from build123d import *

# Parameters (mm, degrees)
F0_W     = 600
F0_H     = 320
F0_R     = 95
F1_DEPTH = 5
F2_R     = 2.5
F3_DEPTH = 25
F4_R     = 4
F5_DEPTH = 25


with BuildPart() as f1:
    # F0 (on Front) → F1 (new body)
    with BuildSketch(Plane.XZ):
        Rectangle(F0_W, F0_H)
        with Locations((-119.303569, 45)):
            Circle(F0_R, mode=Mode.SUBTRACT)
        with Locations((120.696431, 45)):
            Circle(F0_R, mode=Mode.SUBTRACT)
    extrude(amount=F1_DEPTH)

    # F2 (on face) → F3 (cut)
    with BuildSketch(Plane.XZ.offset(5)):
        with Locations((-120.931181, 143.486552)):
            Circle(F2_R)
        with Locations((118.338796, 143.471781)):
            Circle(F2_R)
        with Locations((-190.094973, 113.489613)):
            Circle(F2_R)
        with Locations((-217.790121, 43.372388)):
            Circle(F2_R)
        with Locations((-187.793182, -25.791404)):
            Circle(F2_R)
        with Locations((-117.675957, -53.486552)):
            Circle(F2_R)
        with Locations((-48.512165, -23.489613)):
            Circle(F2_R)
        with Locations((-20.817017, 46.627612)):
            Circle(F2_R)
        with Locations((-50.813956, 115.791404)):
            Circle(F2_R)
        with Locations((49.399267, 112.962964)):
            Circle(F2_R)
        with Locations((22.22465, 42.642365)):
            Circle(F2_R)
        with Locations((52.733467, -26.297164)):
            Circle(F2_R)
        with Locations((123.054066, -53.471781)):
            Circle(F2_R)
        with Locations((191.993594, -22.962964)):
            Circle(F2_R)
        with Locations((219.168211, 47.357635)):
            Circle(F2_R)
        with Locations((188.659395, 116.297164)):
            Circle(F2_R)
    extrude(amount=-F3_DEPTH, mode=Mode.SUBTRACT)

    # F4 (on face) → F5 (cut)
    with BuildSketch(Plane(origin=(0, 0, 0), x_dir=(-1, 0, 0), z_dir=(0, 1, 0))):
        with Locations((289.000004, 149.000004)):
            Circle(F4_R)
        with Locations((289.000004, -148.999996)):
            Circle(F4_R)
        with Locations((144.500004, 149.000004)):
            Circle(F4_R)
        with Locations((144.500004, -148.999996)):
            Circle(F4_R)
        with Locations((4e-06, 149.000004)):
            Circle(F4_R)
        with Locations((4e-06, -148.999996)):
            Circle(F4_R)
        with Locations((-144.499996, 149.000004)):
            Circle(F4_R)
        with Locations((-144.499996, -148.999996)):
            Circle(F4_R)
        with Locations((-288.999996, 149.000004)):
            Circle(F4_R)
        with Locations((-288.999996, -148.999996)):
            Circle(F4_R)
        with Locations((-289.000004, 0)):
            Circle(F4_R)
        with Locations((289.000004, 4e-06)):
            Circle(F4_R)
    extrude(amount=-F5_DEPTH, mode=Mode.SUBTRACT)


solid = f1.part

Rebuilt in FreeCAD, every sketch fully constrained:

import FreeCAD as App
import Part
import Sketcher

V = App.Vector
Q = App.Units.Quantity


def add_polygon(sketch, points):
    """Adds a closed chain of lines whose ends are joined by coincident constraints."""
    first, n = sketch.GeometryCount, len(points)
    for a, b in zip(points, points[1:] + points[:1]):
        sketch.addGeometry(Part.LineSegment(App.Vector(*a, 0), App.Vector(*b, 0)), False)
    for i in range(n):
        sketch.addConstraint(Sketcher.Constraint("Coincident", first + i, 2, first + (i + 1) % n, 1))

doc = App.newDocument("Part")
body = doc.addObject("PartDesign::Body", "Body")

sketch1 = body.newObject("Sketcher::SketchObject", "Sketch")
sketch1.AttachmentSupport = (doc.getObject("XZ_Plane"), [""])
sketch1.MapMode = "FlatFace"
add_polygon(sketch1, [(-300, 160), (-300, -160), (300, -160), (300, 160)])
sketch1.addGeometry(Part.Circle(V(-119, 45, 0), V(0, 0, 1), 95), False)
sketch1.addGeometry(Part.Circle(V(121, 45, 0), V(0, 0, 1), 95), False)
sketch1.addConstraint(Sketcher.Constraint("Vertical", 0))
sketch1.addConstraint(Sketcher.Constraint("Horizontal", 1))
sketch1.addConstraint(Sketcher.Constraint("Vertical", 2))
sketch1.addConstraint(Sketcher.Constraint("Horizontal", 3))
sketch1.addConstraint(Sketcher.Constraint("Equal", 4, 5))
sketch1.addConstraint(Sketcher.Constraint("Symmetric", 0, 2, 2, 2, -1, 1))
sketch1.addConstraint(Sketcher.Constraint("Horizontal", 4, 3, 5, 3))
sketch1.addConstraint(Sketcher.Constraint("Diameter", 4, Q("190 mm")))
sketch1.addConstraint(Sketcher.Constraint("DistanceX", 1, 1, 1, 2, Q("600 mm")))
sketch1.addConstraint(Sketcher.Constraint("DistanceY", 0, 2, 0, 1, Q("320 mm")))
sketch1.addConstraint(Sketcher.Constraint("DistanceY", -1, 1, 4, 3, Q("45 mm")))
sketch1.addConstraint(Sketcher.Constraint("DistanceX", 4, 3, 5, 3, Q("240 mm")))
sketch1.addConstraint(Sketcher.Constraint("DistanceX", 4, 3, -1, 1, Q("119.303569 mm")))
pad1 = body.newObject("PartDesign::Pad", "Pad")
pad1.Profile = sketch1
pad1.Length = 5

sketch2 = body.newObject("Sketcher::SketchObject", "Sketch001")
sketch2.AttachmentSupport = (doc.getObject("XZ_Plane"), [""])
sketch2.MapMode = "FlatFace"
sketch2.AttachmentOffset = App.Placement(V(0, 0, 5), App.Rotation())
sketch2.addGeometry(Part.Circle(V(-120.9, 143.5, 0), V(0, 0, 1), 2.5), False)
sketch2.addGeometry(Part.Circle(V(118.3, 143.5, 0), V(0, 0, 1), 2.5), False)
sketch2.addGeometry(Part.Circle(V(-190.1, 113.5, 0), V(0, 0, 1), 2.5), False)
sketch2.addGeometry(Part.Circle(V(-217.8, 43.4, 0), V(0, 0, 1), 2.5), False)
sketch2.addGeometry(Part.Circle(V(-187.8, -25.8, 0), V(0, 0, 1), 2.5), False)
sketch2.addGeometry(Part.Circle(V(-117.7, -53.5, 0), V(0, 0, 1), 2.5), False)
sketch2.addGeometry(Part.Circle(V(-48.5, -23.5, 0), V(0, 0, 1), 2.5), False)
sketch2.addGeometry(Part.Circle(V(-20.8, 46.6, 0), V(0, 0, 1), 2.5), False)
sketch2.addGeometry(Part.Circle(V(-50.8, 115.8, 0), V(0, 0, 1), 2.5), False)
sketch2.addGeometry(Part.Circle(V(49.4, 113, 0), V(0, 0, 1), 2.5), False)
sketch2.addGeometry(Part.Circle(V(22.2, 42.6, 0), V(0, 0, 1), 2.5), False)
sketch2.addGeometry(Part.Circle(V(52.7, -26.3, 0), V(0, 0, 1), 2.5), False)
sketch2.addGeometry(Part.Circle(V(123.1, -53.5, 0), V(0, 0, 1), 2.5), False)
sketch2.addGeometry(Part.Circle(V(192, -23, 0), V(0, 0, 1), 2.5), False)
sketch2.addGeometry(Part.Circle(V(219.2, 47.4, 0), V(0, 0, 1), 2.5), False)
sketch2.addGeometry(Part.Circle(V(188.7, 116.3, 0), V(0, 0, 1), 2.5), False)
sketch2.addConstraint(Sketcher.Constraint("Equal", 0, 1))
sketch2.addConstraint(Sketcher.Constraint("Equal", 1, 2))
sketch2.addConstraint(Sketcher.Constraint("Equal", 2, 3))
sketch2.addConstraint(Sketcher.Constraint("Equal", 3, 4))
sketch2.addConstraint(Sketcher.Constraint("Equal", 4, 5))
sketch2.addConstraint(Sketcher.Constraint("Equal", 5, 6))
sketch2.addConstraint(Sketcher.Constraint("Equal", 6, 7))
sketch2.addConstraint(Sketcher.Constraint("Equal", 7, 8))
sketch2.addConstraint(Sketcher.Constraint("Equal", 8, 9))
sketch2.addConstraint(Sketcher.Constraint("Equal", 9, 10))
sketch2.addConstraint(Sketcher.Constraint("Equal", 10, 11))
sketch2.addConstraint(Sketcher.Constraint("Equal", 11, 12))
sketch2.addConstraint(Sketcher.Constraint("Equal", 12, 13))
sketch2.addConstraint(Sketcher.Constraint("Equal", 13, 14))
sketch2.addConstraint(Sketcher.Constraint("Equal", 14, 15))
sketch2.addConstraint(Sketcher.Constraint("Diameter", 0, Q("5 mm")))
sketch2.addConstraint(Sketcher.Constraint("DistanceX", 4, 3, 0, 3, Q("66.862001 mm")))
sketch2.addConstraint(Sketcher.Constraint("DistanceY", 6, 3, 3, 3, Q("66.862001 mm")))
sketch2.addConstraint(Sketcher.Constraint("DistanceY", 10, 3, 9, 3, Q("70.320599 mm")))
sketch2.addConstraint(Sketcher.Constraint("DistanceX", 9, 3, 11, 3, Q("3.3342 mm")))
sketch2.addConstraint(Sketcher.Constraint("DistanceX", 11, 3, 12, 3, Q("70.320599 mm")))
sketch2.addConstraint(Sketcher.Constraint("DistanceY", 11, 3, 13, 3, Q("3.3342 mm")))
sketch2.addConstraint(Sketcher.Constraint("DistanceX", 1, 3, 13, 3, Q("73.654798 mm")))
sketch2.addConstraint(Sketcher.Constraint("DistanceY", 13, 3, 14, 3, Q("70.320599 mm")))
sketch2.addConstraint(Sketcher.Constraint("DistanceX", 1, 3, 15, 3, Q("70.320599 mm")))
sketch2.addConstraint(Sketcher.Constraint("DistanceY", 9, 3, 15, 3, Q("3.3342 mm")))
sketch2.addConstraint(Sketcher.Constraint("DistanceX", 0, 3, -1, 1, Q("120.931181 mm")))
sketch2.addConstraint(Sketcher.Constraint("DistanceY", -1, 1, 0, 3, Q("143.486552 mm")))
sketch2.addConstraint(Sketcher.Constraint("DistanceY", -1, 1, 1, 3, Q("143.471781 mm")))
sketch2.addConstraint(Sketcher.Constraint("DistanceX", 3, 3, -1, 1, Q("217.790121 mm")))
sketch2.addConstraint(Sketcher.Constraint("DistanceX", -1, 1, 10, 3, Q("22.22465 mm")))
sketch2.addConstraint(Sketcher.Constraint("DistanceY", 12, 3, -1, 1, Q("53.471781 mm")))
sketch2.addConstraint(Sketcher.Constraint("DistanceX", -1, 1, 14, 3, Q("219.168211 mm")))
sketch2.addConstraint(Sketcher.Constraint("DistanceY", 2, 3, 0, 3, Q("29.996939 mm")))
sketch2.addConstraint(Sketcher.Constraint("DistanceX", 2, 3, 1, 3, Q("308.433769 mm")))
sketch2.addConstraint(Sketcher.Constraint("DistanceY", 4, 3, 3, 3, Q("69.163792 mm")))
sketch2.addConstraint(Sketcher.Constraint("DistanceX", 2, 3, 4, 3, Q("2.301791 mm")))
sketch2.addConstraint(Sketcher.Constraint("DistanceY", 5, 3, 4, 3, Q("27.695148 mm")))
sketch2.addConstraint(Sketcher.Constraint("DistanceX", 5, 3, 6, 3, Q("69.163792 mm")))
sketch2.addConstraint(Sketcher.Constraint("DistanceX", 2, 3, 6, 3, Q("141.582808 mm")))
sketch2.addConstraint(Sketcher.Constraint("DistanceX", 6, 3, 7, 3, Q("27.695148 mm")))
sketch2.addConstraint(Sketcher.Constraint("DistanceY", 7, 3, 0, 3, Q("96.85894 mm")))
sketch2.addConstraint(Sketcher.Constraint("DistanceX", 8, 3, 7, 3, Q("29.996939 mm")))
sketch2.addConstraint(Sketcher.Constraint("DistanceY", 7, 3, 8, 3, Q("69.163792 mm")))
sketch2.addConstraint(Sketcher.Constraint("DistanceX", 9, 3, 1, 3, Q("68.939529 mm")))
sketch2.addConstraint(Sketcher.Constraint("DistanceY", 7, 3, 9, 3, Q("66.335352 mm")))
sketch2.addConstraint(Sketcher.Constraint("DistanceY", 6, 3, 10, 3, Q("66.131978 mm")))
sketch2.addConstraint(Sketcher.Constraint("DistanceY", 11, 3, 10, 3, Q("68.939529 mm")))
pocket1 = body.newObject("PartDesign::Pocket", "Pocket")
pocket1.Profile = sketch2
pocket1.Length = 25

sketch3 = body.newObject("Sketcher::SketchObject", "Sketch002")
sketch3.AttachmentSupport = (doc.getObject("XZ_Plane"), [""])
sketch3.MapMode = "FlatFace"
sketch3.addGeometry(Part.Circle(V(-289, 149, 0), V(0, 0, 1), 4), False)
sketch3.addGeometry(Part.Circle(V(-289, -149, 0), V(0, 0, 1), 4), False)
sketch3.addGeometry(Part.Circle(V(-144.5, 149, 0), V(0, 0, 1), 4), False)
sketch3.addGeometry(Part.Circle(V(-144.5, -149, 0), V(0, 0, 1), 4), False)
sketch3.addGeometry(Part.Circle(V(0, 149, 0), V(0, 0, 1), 4), False)
sketch3.addGeometry(Part.Circle(V(0, -149, 0), V(0, 0, 1), 4), False)
sketch3.addGeometry(Part.Circle(V(144.5, 149, 0), V(0, 0, 1), 4), False)
sketch3.addGeometry(Part.Circle(V(144.5, -149, 0), V(0, 0, 1), 4), False)
sketch3.addGeometry(Part.Circle(V(289, 149, 0), V(0, 0, 1), 4), False)
sketch3.addGeometry(Part.Circle(V(289, -149, 0), V(0, 0, 1), 4), False)
sketch3.addGeometry(Part.Circle(V(289, 0, 0), V(0, 0, 1), 4), False)
sketch3.addGeometry(Part.Circle(V(-289, 0, 0), V(0, 0, 1), 4), False)
sketch3.addConstraint(Sketcher.Constraint("Equal", 0, 1))
sketch3.addConstraint(Sketcher.Constraint("Equal", 1, 2))
sketch3.addConstraint(Sketcher.Constraint("Equal", 2, 3))
sketch3.addConstraint(Sketcher.Constraint("Equal", 3, 4))
sketch3.addConstraint(Sketcher.Constraint("Equal", 4, 5))
sketch3.addConstraint(Sketcher.Constraint("Equal", 5, 6))
sketch3.addConstraint(Sketcher.Constraint("Equal", 6, 7))
sketch3.addConstraint(Sketcher.Constraint("Equal", 7, 8))
sketch3.addConstraint(Sketcher.Constraint("Equal", 8, 9))
sketch3.addConstraint(Sketcher.Constraint("Equal", 9, 10))
sketch3.addConstraint(Sketcher.Constraint("Equal", 10, 11))
sketch3.addConstraint(Sketcher.Constraint("Symmetric", 10, 3, 11, 3, -1, 1))
sketch3.addConstraint(Sketcher.Constraint("Symmetric", 2, 3, 6, 3, -2))
sketch3.addConstraint(Sketcher.Constraint("Symmetric", 3, 3, 7, 3, -2))
sketch3.addConstraint(Sketcher.Constraint("Symmetric", 0, 3, 8, 3, -2))
sketch3.addConstraint(Sketcher.Constraint("Symmetric", 1, 3, 9, 3, -2))
sketch3.addConstraint(Sketcher.Constraint("Symmetric", 0, 3, 1, 3, -1))
sketch3.addConstraint(Sketcher.Constraint("Symmetric", 2, 3, 3, 3, -1))
sketch3.addConstraint(Sketcher.Constraint("Symmetric", 4, 3, 5, 3, -1))
sketch3.addConstraint(Sketcher.Constraint("PointOnObject", 10, 3, -1))
sketch3.addConstraint(Sketcher.Constraint("Horizontal", 0, 3, 2, 3))
sketch3.addConstraint(Sketcher.Constraint("Horizontal", 2, 3, 4, 3))
sketch3.addConstraint(Sketcher.Constraint("Vertical", 1, 3, 11, 3))
sketch3.addConstraint(Sketcher.Constraint("Diameter", 0, Q("8 mm")))
sketch3.addConstraint(Sketcher.Constraint("DistanceY", 1, 3, 0, 3, Q("298 mm")))
sketch3.addConstraint(Sketcher.Constraint("DistanceX", 0, 3, 4, 3, Q("289 mm")))
sketch3.addConstraint(Sketcher.Constraint("DistanceX", 2, 3, 6, 3, Q("289 mm")))
sketch3.addConstraint(Sketcher.Constraint("DistanceX", 4, 3, 8, 3, Q("289 mm")))
pocket2 = body.newObject("PartDesign::Pocket", "Pocket001")
pocket2.Profile = sketch3
pocket2.Length = 25
pocket2.Reversed = True

doc.recompute()
